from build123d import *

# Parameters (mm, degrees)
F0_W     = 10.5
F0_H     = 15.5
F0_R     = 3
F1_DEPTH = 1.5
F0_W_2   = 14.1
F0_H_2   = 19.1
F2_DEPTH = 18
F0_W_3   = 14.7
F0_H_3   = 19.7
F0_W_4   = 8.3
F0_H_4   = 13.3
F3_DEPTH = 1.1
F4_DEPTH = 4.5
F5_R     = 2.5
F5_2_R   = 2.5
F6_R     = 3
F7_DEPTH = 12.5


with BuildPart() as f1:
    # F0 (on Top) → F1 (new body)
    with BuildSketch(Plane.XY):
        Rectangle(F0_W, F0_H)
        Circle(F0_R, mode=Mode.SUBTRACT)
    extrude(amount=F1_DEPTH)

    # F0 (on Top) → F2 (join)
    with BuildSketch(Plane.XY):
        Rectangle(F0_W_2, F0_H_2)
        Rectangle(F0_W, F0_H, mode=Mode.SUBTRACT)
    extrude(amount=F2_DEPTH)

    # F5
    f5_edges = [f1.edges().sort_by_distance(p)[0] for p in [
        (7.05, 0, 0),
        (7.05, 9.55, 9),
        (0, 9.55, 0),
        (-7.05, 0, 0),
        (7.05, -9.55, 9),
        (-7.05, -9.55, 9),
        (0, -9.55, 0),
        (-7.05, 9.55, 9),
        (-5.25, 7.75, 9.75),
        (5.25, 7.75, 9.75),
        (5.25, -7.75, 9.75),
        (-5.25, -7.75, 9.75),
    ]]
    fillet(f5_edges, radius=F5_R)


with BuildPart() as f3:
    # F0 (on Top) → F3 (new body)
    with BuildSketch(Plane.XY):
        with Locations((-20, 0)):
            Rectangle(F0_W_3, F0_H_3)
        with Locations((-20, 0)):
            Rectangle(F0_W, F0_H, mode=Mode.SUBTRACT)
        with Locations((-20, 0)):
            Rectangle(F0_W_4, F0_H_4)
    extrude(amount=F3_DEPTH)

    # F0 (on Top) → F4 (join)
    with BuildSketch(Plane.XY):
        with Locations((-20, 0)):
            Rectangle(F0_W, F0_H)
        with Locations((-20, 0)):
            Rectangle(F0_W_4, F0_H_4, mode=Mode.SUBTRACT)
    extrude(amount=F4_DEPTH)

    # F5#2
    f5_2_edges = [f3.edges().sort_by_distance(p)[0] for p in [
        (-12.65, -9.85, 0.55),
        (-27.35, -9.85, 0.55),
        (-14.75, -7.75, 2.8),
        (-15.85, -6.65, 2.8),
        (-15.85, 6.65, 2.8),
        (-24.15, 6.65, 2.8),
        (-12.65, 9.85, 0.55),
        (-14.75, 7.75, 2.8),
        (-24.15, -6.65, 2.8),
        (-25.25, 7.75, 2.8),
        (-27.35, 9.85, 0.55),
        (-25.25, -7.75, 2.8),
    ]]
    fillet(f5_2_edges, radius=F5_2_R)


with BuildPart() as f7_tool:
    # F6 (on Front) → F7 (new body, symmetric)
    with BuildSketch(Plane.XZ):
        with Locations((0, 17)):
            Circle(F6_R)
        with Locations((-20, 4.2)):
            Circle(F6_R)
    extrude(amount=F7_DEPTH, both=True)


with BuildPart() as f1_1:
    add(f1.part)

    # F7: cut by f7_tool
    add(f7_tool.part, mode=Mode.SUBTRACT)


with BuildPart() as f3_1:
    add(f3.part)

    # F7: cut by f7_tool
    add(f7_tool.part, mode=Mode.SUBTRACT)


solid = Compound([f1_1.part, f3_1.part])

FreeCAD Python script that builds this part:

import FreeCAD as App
import Part
import Sketcher
from FreeCAD import Vector


def edges_at(feature, points):
    """Names of the edges that pass closest to the given points."""
    edges = feature.Shape.Edges
    near = lambda p: min(range(len(edges)), key=lambda i: edges[i].distToShape(Part.Vertex(*p))[0])
    return sorted({f"Edge{near(p) + 1}" for p in points})


def add_polygon(sketch, points):
    """Adds a closed chain of lines whose ends are joined by coincident constraints."""
    first, n = sketch.GeometryCount, len(points)
    for a, b in zip(points, points[1:] + points[:1]):
        sketch.addGeometry(Part.LineSegment(App.Vector(*a, 0), App.Vector(*b, 0)), False)
    for i in range(n):
        sketch.addConstraint(Sketcher.Constraint("Coincident", first + i, 2, first + (i + 1) % n, 1))

doc = App.newDocument("Part")
params = doc.addObject("Spreadsheet::Sheet", "Params")
for row, (alias, value) in enumerate([
    ("sketch1_diameter", "6 mm"),
    ("sketch1_width", "10.5 mm"),
    ("sketch1_height", "15.5 mm"),
    ("pad1_length", "1.5 mm"),
    ("sketch2_width", "14.1 mm"),
    ("sketch2_width2", "10.5 mm"),
    ("sketch2_height", "19.1 mm"),
    ("sketch2_height2", "15.5 mm"),
    ("pad2_length", "18 mm"),
    ("fillet_radius", "2.5 mm"),
    ("sketch3_width", "14.7 mm"),
    ("sketch3_width2", "10.5 mm"),
    ("sketch3_width3", "8.3 mm"),
    ("sketch3_height", "19.7 mm"),
    ("sketch3_height2", "15.5 mm"),
    ("pad3_length", "1.1 mm"),
    ("sketch4_width", "10.5 mm"),
    ("sketch4_width2", "8.3 mm"),
    ("sketch4_height", "15.5 mm"),
    ("sketch4_height2", "13.3 mm"),
    ("pad4_length", "4.5 mm"),
    ("fillet2_radius", "2.5 mm"),
    ("sketch5_diameter", "6 mm"),
    ("pad5_length", "25 mm"),
], start=1):
    params.set(f"A{row}", alias)
    params.set(f"B{row}", "=" + value)
    params.setAlias(f"B{row}", alias)

body = doc.addObject("PartDesign::Body", "Body")

sketch1 = body.newObject("Sketcher::SketchObject", "Sketch")
sketch1.AttachmentSupport = (doc.getObject("XY_Plane"), [""])
sketch1.MapMode = "FlatFace"
add_polygon(sketch1, [(-5.25, 7.75), (-5.25, -7.75), (5.25, -7.75), (5.25, 7.75)])
sketch1.addGeometry(Part.Circle(Vector(0, 0, 0), Vector(0, 0, 1), 3), False)
sketch1.addConstraint(Sketcher.Constraint("Vertical", 0))
sketch1.addConstraint(Sketcher.Constraint("Horizontal", 1))
sketch1.addConstraint(Sketcher.Constraint("Vertical", 2))
sketch1.addConstraint(Sketcher.Constraint("Horizontal", 3))
sketch1.addConstraint(Sketcher.Constraint("Coincident", 4, 3, -1, 1))
sketch1.addConstraint(Sketcher.Constraint("Symmetric", 0, 2, 2, 2, -1, 1))
sketch1.addConstraint(Sketcher.Constraint("Diameter", 4, 6.0))
sketch1.addConstraint(Sketcher.Constraint("DistanceX", 1, 1, 1, 2, 10.5))
sketch1.addConstraint(Sketcher.Constraint("DistanceY", 0, 2, 0, 1, 15.5))
sketch1.setExpression("Constraints[10]", "Params.sketch1_diameter")
sketch1.setExpression("Constraints[11]", "Params.sketch1_width")
sketch1.setExpression("Constraints[12]", "Params.sketch1_height")
pad1 = body.newObject("PartDesign::Pad", "Pad")
pad1.Profile = sketch1
pad1.setExpression("Length", "Params.pad1_length")

sketch2 = body.newObject("Sketcher::SketchObject", "Sketch001")
sketch2.AttachmentSupport = (doc.getObject("XY_Plane"), [""])
sketch2.MapMode = "FlatFace"
add_polygon(sketch2, [(-7.05, 9.55), (-7.05, -9.55), (7.05, -9.55), (7.05, 9.55)])
add_polygon(sketch2, [(5.25, -7.75), (-5.25, -7.75), (-5.25, 7.75), (5.25, 7.75)])
sketch2.addConstraint(Sketcher.Constraint("Vertical", 0))
sketch2.addConstraint(Sketcher.Constraint("Horizontal", 1))
sketch2.addConstraint(Sketcher.Constraint("Vertical", 2))
sketch2.addConstraint(Sketcher.Constraint("Horizontal", 3))
sketch2.addConstraint(Sketcher.Constraint("Horizontal", 4))
sketch2.addConstraint(Sketcher.Constraint("Vertical", 5))
sketch2.addConstraint(Sketcher.Constraint("Horizontal", 6))
sketch2.addConstraint(Sketcher.Constraint("Vertical", 7))
sketch2.addConstraint(Sketcher.Constraint("Symmetric", 0, 2, 2, 2, -1, 1))
sketch2.addConstraint(Sketcher.Constraint("Symmetric", 4, 2, 6, 2, -1, 1))
sketch2.addConstraint(Sketcher.Constraint("DistanceX", 1, 1, 1, 2, 14.1))
sketch2.addConstraint(Sketcher.Constraint("DistanceX", 4, 2, 4, 1, 10.5))
sketch2.addConstraint(Sketcher.Constraint("DistanceY", 0, 2, 0, 1, 19.1))
sketch2.addConstraint(Sketcher.Constraint("DistanceY", 5, 1, 5, 2, 15.5))
sketch2.setExpression("Constraints[18]", "Params.sketch2_width")
sketch2.setExpression("Constraints[19]", "Params.sketch2_width2")
sketch2.setExpression("Constraints[20]", "Params.sketch2_height")
sketch2.setExpression("Constraints[21]", "Params.sketch2_height2")
pad2 = body.newObject("PartDesign::Pad", "Pad001")
pad2.Profile = sketch2
pad2.setExpression("Length", "Params.pad2_length")
doc.recompute()

fillet = body.newObject("PartDesign::Fillet", "Fillet")
fillet.Base = (pad2, edges_at(pad2, [
    (7.05, 0, 0),
    (7.05, 9.55, 9),
    (0, 9.55, 0),
    (-7.05, 0, 0),
    (7.05, -9.55, 9),
    (-7.05, -9.55, 9),
    (0, -9.55, 0),
    (-7.05, 9.55, 9),
    (-5.25, 7.75, 9.75),
    (5.25, 7.75, 9.75),
    (5.25, -7.75, 9.75),
    (-5.25, -7.75, 9.75),
]))
fillet.setExpression("Radius", "Params.fillet_radius")
body2 = doc.addObject("PartDesign::Body", "Body001")
body2.AllowCompound = True

sketch3 = body2.newObject("Sketcher::SketchObject", "Sketch002")
sketch3.AttachmentSupport = (doc.getObject("XY_Plane001"), [""])
sketch3.MapMode = "FlatFace"
add_polygon(sketch3, [(-27.35, 9.85), (-27.35, -9.85), (-12.65, -9.85), (-12.65, 9.85)])
add_polygon(sketch3, [(-14.75, -7.75), (-25.25, -7.75), (-25.25, 7.75), (-14.75, 7.75)])
add_polygon(sketch3, [(-24.15, 6.65), (-24.15, -6.65), (-15.85, -6.65), (-15.85, 6.65)])
sketch3.addConstraint(Sketcher.Constraint("Vertical", 0))
sketch3.addConstraint(Sketcher.Constraint("Horizontal", 1))
sketch3.addConstraint(Sketcher.Constraint("Vertical", 2))
sketch3.addConstraint(Sketcher.Constraint("Horizontal", 3))
sketch3.addConstraint(Sketcher.Constraint("Horizontal", 4))
sketch3.addConstraint(Sketcher.Constraint("Vertical", 5))
sketch3.addConstraint(Sketcher.Constraint("Horizontal", 6))
sketch3.addConstraint(Sketcher.Constraint("Vertical", 7))
sketch3.addConstraint(Sketcher.Constraint("Vertical", 8))
sketch3.addConstraint(Sketcher.Constraint("Horizontal", 9))
sketch3.addConstraint(Sketcher.Constraint("Vertical", 10))
sketch3.addConstraint(Sketcher.Constraint("Horizontal", 11))
sketch3.addConstraint(Sketcher.Constraint("DistanceX", 1, 1, 1, 2, 14.7))
sketch3.addConstraint(Sketcher.Constraint("DistanceX", 4, 2, 4, 1, 10.5))
sketch3.addConstraint(Sketcher.Constraint("DistanceX", 9, 1, 9, 2, 8.3))
sketch3.addConstraint(Sketcher.Constraint("DistanceY", 0, 2, 0, 1, 19.7))
sketch3.addConstraint(Sketcher.Constraint("DistanceY", 5, 1, 5, 2, 15.5))
sketch3.addConstraint(Sketcher.Constraint("DistanceY", 8, 2, 8, 1, 13.3))
sketch3.addConstraint(Sketcher.Constraint("DistanceX", 0, 2, 4, 2, 2.1))
sketch3.addConstraint(Sketcher.Constraint("DistanceY", 0, 2, 4, 2, 2.1))
sketch3.addConstraint(Sketcher.Constraint("DistanceX", 4, 2, 8, 2, 1.1))
sketch3.addConstraint(Sketcher.Constraint("DistanceY", 4, 2, 8, 2, 1.1))
sketch3.addConstraint(Sketcher.Constraint("DistanceX", 0, 2, -1, 1, 27.35))
sketch3.addConstraint(Sketcher.Constraint("DistanceY", 0, 2, -1, 1, 9.85))
sketch3.setExpression("Constraints[24]", "Params.sketch3_width")
sketch3.setExpression("Constraints[25]", "Params.sketch3_width2")
sketch3.setExpression("Constraints[26]", "Params.sketch3_width3")
sketch3.setExpression("Constraints[27]", "Params.sketch3_height")
sketch3.setExpression("Constraints[28]", "Params.sketch3_height2")
pad3 = body2.newObject("PartDesign::Pad", "Pad002")
pad3.Profile = sketch3
pad3.setExpression("Length", "Params.pad3_length")

sketch4 = body2.newObject("Sketcher::SketchObject", "Sketch003")
sketch4.AttachmentSupport = (doc.getObject("XY_Plane001"), [""])
sketch4.MapMode = "FlatFace"
add_polygon(sketch4, [(-25.25, 7.75), (-25.25, -7.75), (-14.75, -7.75), (-14.75, 7.75)])
add_polygon(sketch4, [(-15.85, -6.65), (-24.15, -6.65), (-24.15, 6.65), (-15.85, 6.65)])
sketch4.addConstraint(Sketcher.Constraint("Vertical", 0))
sketch4.addConstraint(Sketcher.Constraint("Horizontal", 1))
sketch4.addConstraint(Sketcher.Constraint("Vertical", 2))
sketch4.addConstraint(Sketcher.Constraint("Horizontal", 3))
sketch4.addConstraint(Sketcher.Constraint("Horizontal", 4))
sketch4.addConstraint(Sketcher.Constraint("Vertical", 5))
sketch4.addConstraint(Sketcher.Constraint("Horizontal", 6))
sketch4.addConstraint(Sketcher.Constraint("Vertical", 7))
sketch4.addConstraint(Sketcher.Constraint("DistanceX", 1, 1, 1, 2, 10.5))
sketch4.addConstraint(Sketcher.Constraint("DistanceX", 4, 2, 4, 1, 8.3))
sketch4.addConstraint(Sketcher.Constraint("DistanceY", 0, 2, 0, 1, 15.5))
sketch4.addConstraint(Sketcher.Constraint("DistanceY", 5, 1, 5, 2, 13.3))
sketch4.addConstraint(Sketcher.Constraint("DistanceX", 0, 2, 4, 2, 1.1))
sketch4.addConstraint(Sketcher.Constraint("DistanceY", 0, 2, 4, 2, 1.1))
sketch4.addConstraint(Sketcher.Constraint("DistanceX", 0, 2, -1, 1, 25.25))
sketch4.addConstraint(Sketcher.Constraint("DistanceY", 0, 2, -1, 1, 7.75))
sketch4.setExpression("Constraints[16]", "Params.sketch4_width")
sketch4.setExpression("Constraints[17]", "Params.sketch4_width2")
sketch4.setExpression("Constraints[18]", "Params.sketch4_height")
sketch4.setExpression("Constraints[19]", "Params.sketch4_height2")
pad4 = body2.newObject("PartDesign::Pad", "Pad003")
pad4.Profile = sketch4
pad4.setExpression("Length", "Params.pad4_length")
doc.recompute()

fillet2 = body2.newObject("PartDesign::Fillet", "Fillet001")
fillet2.Base = (pad4, edges_at(pad4, [
    (-12.65, -9.85, 0.55),
    (-27.35, -9.85, 0.55),
    (-14.75, -7.75, 2.8),
    (-15.85, -6.65, 2.8),
    (-15.85, 6.65, 2.8),
    (-24.15, 6.65, 2.8),
    (-12.65, 9.85, 0.55),
    (-14.75, 7.75, 2.8),
    (-24.15, -6.65, 2.8),
    (-25.25, 7.75, 2.8),
    (-27.35, 9.85, 0.55),
    (-25.25, -7.75, 2.8),
]))
fillet2.setExpression("Radius", "Params.fillet2_radius")
body3 = doc.addObject("PartDesign::Body", "Body002")
body3.AllowCompound = True

sketch5 = body3.newObject("Sketcher::SketchObject", "Sketch004")
sketch5.AttachmentSupport = (doc.getObject("XZ_Plane002"), [""])
sketch5.MapMode = "FlatFace"
sketch5.addGeometry(Part.Circle(Vector(0, 17, 0), Vector(0, 0, 1), 3), False)
sketch5.addGeometry(Part.Circle(Vector(-20, 4.2, 0), Vector(0, 0, 1), 3), False)
sketch5.addConstraint(Sketcher.Constraint("Equal", 0, 1))
sketch5.addConstraint(Sketcher.Constraint("PointOnObject", 0, 3, -2))
sketch5.addConstraint(Sketcher.Constraint("Diameter", 0, 6.0))
sketch5.addConstraint(Sketcher.Constraint("DistanceY", -1, 1, 0, 3, 17.0))
sketch5.addConstraint(Sketcher.Constraint("DistanceX", 1, 3, -1, 1, 20.0))
sketch5.addConstraint(Sketcher.Constraint("DistanceY", -1, 1, 1, 3, 4.2))
sketch5.setExpression("Constraints[2]", "Params.sketch5_diameter")
pad5 = body3.newObject("PartDesign::Pad", "Pad004")
pad5.Profile = sketch5
pad5.setExpression("Length", "Params.pad5_length")
pad5.Midplane = True
doc.recompute()

body4 = doc.addObject("PartDesign::Body", "Body003")
body4.BaseFeature = body3
boolean = body.newObject("PartDesign::Boolean", "Boolean")
boolean.Type = "Cut"
boolean.addObjects([body4])
doc.recompute()

boolean2 = body2.newObject("PartDesign::Boolean", "Boolean001")
boolean2.Type = "Cut"
boolean2.addObjects([body3])

doc.recompute()
